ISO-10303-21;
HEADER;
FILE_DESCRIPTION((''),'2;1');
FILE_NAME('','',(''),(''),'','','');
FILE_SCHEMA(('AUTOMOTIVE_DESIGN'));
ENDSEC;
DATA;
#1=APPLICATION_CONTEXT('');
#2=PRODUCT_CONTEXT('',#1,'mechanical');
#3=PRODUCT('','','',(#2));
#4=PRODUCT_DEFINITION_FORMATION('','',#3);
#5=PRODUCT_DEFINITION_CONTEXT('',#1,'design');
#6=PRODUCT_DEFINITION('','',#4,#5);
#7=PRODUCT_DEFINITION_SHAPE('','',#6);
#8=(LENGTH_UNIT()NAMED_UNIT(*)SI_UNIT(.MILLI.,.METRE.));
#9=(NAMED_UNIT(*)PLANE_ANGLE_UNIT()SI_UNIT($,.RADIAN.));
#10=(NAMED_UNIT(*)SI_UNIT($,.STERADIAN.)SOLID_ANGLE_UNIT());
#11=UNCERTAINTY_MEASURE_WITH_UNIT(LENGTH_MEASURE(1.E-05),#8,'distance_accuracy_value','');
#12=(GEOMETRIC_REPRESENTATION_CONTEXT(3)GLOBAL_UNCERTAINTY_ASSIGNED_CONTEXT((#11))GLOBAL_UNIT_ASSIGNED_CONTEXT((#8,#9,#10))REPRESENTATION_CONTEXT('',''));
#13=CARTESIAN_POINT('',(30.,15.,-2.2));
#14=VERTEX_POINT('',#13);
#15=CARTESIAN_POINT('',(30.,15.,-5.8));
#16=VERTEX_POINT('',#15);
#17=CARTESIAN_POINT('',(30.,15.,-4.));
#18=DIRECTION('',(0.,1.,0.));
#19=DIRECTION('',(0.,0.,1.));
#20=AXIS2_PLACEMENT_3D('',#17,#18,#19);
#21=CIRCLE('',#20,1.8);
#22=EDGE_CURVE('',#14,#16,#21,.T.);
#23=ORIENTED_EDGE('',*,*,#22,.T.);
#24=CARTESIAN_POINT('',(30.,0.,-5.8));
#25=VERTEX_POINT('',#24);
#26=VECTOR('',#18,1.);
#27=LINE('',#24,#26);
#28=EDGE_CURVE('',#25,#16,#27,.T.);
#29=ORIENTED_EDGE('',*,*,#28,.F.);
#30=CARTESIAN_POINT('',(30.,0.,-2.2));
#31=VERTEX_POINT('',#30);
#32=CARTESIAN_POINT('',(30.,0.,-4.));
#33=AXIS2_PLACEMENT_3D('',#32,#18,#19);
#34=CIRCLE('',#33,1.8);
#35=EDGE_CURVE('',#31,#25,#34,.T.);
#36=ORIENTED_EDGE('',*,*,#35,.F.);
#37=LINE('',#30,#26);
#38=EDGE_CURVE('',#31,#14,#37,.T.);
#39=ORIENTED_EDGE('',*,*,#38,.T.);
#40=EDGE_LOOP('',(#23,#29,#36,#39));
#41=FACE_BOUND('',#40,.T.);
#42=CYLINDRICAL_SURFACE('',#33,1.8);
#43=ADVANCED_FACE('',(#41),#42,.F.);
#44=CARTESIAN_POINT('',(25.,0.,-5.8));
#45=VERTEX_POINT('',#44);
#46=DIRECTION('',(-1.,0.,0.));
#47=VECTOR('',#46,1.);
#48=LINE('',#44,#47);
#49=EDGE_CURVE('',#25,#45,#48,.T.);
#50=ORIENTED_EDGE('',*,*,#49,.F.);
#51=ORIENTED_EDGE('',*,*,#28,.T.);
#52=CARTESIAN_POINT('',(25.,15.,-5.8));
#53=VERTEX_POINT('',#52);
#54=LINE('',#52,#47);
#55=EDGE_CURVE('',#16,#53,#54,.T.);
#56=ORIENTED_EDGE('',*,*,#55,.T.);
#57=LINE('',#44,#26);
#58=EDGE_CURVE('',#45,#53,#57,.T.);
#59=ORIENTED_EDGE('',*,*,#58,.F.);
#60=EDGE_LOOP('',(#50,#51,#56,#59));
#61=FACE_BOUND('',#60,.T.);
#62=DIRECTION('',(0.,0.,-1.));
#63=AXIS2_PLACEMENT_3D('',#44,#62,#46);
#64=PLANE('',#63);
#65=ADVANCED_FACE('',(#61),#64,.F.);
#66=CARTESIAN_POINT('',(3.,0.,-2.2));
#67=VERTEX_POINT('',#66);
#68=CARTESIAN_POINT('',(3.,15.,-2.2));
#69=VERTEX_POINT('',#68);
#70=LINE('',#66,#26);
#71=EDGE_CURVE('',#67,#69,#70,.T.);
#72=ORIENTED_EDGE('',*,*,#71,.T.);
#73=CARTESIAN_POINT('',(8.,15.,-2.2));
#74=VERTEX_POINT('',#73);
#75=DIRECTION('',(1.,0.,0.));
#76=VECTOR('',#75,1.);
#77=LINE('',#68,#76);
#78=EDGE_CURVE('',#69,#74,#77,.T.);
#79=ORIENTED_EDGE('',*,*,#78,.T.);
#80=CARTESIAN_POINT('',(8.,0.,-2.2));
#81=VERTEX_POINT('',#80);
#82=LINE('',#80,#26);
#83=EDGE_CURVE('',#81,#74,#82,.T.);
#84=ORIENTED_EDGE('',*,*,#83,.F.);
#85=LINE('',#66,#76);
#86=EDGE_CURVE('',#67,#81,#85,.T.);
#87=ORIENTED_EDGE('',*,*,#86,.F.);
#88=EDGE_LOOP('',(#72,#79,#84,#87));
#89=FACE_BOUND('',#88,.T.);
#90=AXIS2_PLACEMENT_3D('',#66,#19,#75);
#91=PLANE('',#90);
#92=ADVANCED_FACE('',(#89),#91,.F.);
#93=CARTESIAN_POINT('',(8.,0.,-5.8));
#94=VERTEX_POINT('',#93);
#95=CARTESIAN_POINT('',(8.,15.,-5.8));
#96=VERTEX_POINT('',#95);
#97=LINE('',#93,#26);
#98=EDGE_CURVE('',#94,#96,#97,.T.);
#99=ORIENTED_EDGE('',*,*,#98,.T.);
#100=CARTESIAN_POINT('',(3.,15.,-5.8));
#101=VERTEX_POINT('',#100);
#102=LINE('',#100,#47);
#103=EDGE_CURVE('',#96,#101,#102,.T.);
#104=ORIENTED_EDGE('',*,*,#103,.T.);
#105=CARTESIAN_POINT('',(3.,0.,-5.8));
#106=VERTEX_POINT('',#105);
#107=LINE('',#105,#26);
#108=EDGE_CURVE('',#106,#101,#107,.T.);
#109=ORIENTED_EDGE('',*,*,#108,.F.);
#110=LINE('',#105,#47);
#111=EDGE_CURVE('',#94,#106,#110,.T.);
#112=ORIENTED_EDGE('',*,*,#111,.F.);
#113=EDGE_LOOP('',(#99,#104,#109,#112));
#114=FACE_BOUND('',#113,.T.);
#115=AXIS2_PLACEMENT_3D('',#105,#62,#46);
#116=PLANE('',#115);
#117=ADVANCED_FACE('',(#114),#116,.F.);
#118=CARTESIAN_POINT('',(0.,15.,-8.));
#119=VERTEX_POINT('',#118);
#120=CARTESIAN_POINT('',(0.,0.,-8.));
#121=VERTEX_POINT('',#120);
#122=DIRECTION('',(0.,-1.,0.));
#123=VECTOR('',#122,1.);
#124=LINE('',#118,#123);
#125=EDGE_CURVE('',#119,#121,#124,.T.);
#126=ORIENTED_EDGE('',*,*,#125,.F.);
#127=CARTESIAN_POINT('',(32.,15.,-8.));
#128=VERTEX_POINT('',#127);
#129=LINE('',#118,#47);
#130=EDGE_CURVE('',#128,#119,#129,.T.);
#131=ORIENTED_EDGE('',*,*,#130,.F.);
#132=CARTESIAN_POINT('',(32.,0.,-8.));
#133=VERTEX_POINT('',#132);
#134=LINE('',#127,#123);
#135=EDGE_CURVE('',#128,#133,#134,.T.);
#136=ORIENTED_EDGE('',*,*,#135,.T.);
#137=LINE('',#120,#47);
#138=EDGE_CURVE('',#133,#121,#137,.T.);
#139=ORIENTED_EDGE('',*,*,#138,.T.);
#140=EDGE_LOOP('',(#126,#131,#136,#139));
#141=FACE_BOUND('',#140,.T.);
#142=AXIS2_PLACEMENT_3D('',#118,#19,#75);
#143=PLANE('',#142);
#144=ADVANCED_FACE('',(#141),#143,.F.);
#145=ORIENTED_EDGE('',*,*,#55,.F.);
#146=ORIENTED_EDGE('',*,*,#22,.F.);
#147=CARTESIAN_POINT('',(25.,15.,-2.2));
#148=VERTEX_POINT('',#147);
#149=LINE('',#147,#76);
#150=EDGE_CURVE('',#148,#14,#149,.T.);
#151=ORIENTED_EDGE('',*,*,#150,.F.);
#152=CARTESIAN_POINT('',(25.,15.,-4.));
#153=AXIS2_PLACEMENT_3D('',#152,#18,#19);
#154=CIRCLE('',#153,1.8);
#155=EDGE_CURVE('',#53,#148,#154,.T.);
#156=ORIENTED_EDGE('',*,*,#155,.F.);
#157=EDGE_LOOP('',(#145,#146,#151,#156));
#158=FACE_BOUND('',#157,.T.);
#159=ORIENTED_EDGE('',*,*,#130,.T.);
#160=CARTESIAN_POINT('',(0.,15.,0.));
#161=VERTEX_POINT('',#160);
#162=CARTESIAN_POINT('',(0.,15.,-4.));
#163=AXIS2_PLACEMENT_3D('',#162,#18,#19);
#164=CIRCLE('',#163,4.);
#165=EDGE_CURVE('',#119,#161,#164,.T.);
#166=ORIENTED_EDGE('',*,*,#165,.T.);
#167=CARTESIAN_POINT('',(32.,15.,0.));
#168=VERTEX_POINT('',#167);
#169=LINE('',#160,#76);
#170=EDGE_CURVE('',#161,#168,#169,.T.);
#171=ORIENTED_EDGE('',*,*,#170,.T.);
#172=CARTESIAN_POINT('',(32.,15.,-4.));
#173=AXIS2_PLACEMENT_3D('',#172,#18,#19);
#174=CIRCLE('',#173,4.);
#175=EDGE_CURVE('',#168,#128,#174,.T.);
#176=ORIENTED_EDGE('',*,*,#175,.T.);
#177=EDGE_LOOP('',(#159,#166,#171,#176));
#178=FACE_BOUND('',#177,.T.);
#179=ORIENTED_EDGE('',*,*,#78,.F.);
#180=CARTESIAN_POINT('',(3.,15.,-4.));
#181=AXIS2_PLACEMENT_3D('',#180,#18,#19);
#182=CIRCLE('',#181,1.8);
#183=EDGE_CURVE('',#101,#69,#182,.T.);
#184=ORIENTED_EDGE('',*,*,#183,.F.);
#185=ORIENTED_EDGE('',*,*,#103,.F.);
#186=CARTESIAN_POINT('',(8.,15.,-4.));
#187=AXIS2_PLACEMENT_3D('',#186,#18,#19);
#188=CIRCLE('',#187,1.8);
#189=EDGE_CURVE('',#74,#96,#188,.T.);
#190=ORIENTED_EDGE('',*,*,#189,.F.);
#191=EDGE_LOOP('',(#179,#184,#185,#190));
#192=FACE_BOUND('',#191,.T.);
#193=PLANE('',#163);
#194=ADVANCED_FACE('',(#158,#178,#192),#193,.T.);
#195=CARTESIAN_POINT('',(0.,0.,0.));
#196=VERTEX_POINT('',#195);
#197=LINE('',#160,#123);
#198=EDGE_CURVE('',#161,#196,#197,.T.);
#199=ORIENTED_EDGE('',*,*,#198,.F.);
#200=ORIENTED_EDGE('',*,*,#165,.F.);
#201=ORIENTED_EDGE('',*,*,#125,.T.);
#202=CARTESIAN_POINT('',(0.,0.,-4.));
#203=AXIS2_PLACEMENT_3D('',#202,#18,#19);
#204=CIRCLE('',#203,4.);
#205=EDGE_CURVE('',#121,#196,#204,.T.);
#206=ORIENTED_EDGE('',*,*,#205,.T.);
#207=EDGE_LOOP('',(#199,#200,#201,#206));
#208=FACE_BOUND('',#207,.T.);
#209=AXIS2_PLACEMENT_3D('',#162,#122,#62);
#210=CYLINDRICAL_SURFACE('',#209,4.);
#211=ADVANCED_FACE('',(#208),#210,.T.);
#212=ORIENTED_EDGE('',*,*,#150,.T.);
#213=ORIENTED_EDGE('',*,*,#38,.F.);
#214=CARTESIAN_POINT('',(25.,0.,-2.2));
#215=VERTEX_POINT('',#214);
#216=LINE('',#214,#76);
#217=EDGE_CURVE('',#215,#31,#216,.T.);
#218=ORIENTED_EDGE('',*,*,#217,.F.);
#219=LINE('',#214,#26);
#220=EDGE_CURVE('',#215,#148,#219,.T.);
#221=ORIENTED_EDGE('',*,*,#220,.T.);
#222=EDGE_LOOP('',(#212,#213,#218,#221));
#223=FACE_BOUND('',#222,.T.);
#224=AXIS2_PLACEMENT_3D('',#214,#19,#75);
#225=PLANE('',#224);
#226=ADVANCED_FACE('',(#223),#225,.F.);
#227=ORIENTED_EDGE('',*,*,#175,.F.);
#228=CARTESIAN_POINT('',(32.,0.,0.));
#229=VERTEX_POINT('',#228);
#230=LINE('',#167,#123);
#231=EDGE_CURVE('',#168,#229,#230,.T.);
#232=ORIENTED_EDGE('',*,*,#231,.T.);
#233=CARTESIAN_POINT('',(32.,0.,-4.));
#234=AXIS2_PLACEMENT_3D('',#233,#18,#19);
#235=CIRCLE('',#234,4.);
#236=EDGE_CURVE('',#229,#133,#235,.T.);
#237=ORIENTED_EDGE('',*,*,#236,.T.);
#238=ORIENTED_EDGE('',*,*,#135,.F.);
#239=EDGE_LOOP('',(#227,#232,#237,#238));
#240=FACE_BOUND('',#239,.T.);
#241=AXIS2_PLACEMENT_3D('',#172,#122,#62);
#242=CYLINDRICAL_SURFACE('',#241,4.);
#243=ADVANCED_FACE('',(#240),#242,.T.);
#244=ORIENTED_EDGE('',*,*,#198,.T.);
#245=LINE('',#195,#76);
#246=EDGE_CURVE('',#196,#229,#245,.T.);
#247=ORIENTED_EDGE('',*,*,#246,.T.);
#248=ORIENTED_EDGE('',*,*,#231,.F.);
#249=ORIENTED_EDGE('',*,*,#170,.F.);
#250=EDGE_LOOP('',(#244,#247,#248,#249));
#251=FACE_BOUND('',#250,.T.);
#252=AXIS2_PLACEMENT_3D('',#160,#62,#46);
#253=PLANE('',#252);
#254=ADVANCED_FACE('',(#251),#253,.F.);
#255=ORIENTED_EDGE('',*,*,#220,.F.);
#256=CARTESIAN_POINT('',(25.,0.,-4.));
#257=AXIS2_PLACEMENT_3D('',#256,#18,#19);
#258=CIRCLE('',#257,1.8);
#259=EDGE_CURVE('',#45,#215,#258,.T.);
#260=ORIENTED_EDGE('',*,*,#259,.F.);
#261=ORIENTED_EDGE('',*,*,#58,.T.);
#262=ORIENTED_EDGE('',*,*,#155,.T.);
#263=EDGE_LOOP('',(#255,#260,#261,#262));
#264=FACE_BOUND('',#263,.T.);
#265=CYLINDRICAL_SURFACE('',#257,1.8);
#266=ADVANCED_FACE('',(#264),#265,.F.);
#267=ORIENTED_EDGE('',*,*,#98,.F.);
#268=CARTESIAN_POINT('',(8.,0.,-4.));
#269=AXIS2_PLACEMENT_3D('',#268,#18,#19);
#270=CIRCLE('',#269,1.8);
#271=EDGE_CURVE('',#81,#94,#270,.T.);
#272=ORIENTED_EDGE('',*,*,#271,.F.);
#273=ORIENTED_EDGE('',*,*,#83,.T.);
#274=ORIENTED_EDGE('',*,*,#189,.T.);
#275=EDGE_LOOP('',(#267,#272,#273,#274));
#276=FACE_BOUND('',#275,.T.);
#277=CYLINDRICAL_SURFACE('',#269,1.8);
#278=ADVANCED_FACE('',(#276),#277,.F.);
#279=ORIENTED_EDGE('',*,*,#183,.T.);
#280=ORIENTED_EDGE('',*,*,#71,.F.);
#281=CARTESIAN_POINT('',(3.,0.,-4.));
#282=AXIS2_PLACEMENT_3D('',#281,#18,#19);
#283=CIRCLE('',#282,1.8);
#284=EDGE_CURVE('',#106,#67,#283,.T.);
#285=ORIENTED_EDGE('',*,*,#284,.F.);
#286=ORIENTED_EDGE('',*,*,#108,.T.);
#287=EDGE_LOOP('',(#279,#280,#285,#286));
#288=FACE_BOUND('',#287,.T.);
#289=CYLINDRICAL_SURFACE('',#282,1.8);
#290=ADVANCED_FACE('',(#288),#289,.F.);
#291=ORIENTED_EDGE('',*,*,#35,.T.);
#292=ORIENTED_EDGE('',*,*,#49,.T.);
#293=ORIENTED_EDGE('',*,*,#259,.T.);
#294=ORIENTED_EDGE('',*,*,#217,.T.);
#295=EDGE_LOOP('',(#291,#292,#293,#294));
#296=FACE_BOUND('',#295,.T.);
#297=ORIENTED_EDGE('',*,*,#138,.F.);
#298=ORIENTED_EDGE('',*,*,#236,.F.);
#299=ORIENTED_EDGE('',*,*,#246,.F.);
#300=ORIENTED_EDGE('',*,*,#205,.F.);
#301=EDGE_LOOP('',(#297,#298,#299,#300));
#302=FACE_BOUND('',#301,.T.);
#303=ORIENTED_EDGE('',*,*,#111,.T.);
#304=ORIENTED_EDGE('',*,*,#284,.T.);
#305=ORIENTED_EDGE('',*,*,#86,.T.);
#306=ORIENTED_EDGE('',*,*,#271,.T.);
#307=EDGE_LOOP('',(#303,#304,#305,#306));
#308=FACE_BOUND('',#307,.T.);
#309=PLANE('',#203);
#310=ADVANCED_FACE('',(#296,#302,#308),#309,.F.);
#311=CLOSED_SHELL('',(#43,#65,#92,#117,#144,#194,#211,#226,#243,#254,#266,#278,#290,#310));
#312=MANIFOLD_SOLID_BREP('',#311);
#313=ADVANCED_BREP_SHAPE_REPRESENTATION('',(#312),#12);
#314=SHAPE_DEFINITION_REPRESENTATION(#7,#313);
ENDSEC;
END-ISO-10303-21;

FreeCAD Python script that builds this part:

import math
import FreeCAD as App
import Part
import Sketcher

V = App.Vector

doc = App.newDocument("Part")
body = doc.addObject("PartDesign::Body", "Body")

sketch1 = body.newObject("Sketcher::SketchObject", "Sketch")
sketch1.AttachmentSupport = (doc.getObject("XZ_Plane"), [""])
sketch1.MapMode = "FlatFace"
sketch1.addGeometry(Part.LineSegment(V(0, 0, 0), V(32, 0, 0)), False)
sketch1.addGeometry(Part.ArcOfCircle(Part.Circle(V(32, -4, 0), V(0, 0, 1), 4), math.radians(-90), math.radians(90)), False)
sketch1.addGeometry(Part.LineSegment(V(32, -8, 0), V(0, -8, 0)), False)
sketch1.addGeometry(Part.ArcOfCircle(Part.Circle(V(0, -4, 0), V(0, 0, 1), 4), math.radians(90), math.radians(270)), False)
sketch1.addConstraint(Sketcher.Constraint("Tangent", 0, 2, 1, 2))
sketch1.addConstraint(Sketcher.Constraint("Tangent", 1, 1, 2, 1))
sketch1.addConstraint(Sketcher.Constraint("Tangent", 2, 2, 3, 2))
sketch1.addConstraint(Sketcher.Constraint("Tangent", 3, 1, 0, 1))
sketch1.addConstraint(Sketcher.Constraint("Horizontal", 0))
sketch1.addConstraint(Sketcher.Constraint("Horizontal", 2))
sketch1.addConstraint(Sketcher.Constraint("Coincident", 3, 1, -1, 1))
sketch1.addConstraint(Sketcher.Constraint("Radius", 1, 4.0))
sketch1.addConstraint(Sketcher.Constraint("DistanceX", 0, 1, 0, 2, 32.0))
pad1 = body.newObject("PartDesign::Pad", "Pad")
pad1.Profile = sketch1
pad1.Length = 15
pad1.Reversed = True

sketch2 = body.newObject("Sketcher::SketchObject", "Sketch001")
sketch2.AttachmentSupport = (doc.getObject("XZ_Plane"), [""])
sketch2.MapMode = "FlatFace"
sketch2.AttachmentOffset = App.Placement(V(0, 0, -15), App.Rotation())
sketch2.addGeometry(Part.LineSegment(V(8, -5.8, 0), V(3, -5.8, 0)), False)
sketch2.addGeometry(Part.ArcOfCircle(Part.Circle(V(3, -4, 0), V(0, 0, 1), 1.8), math.radians(90), math.radians(270)), False)
sketch2.addGeometry(Part.LineSegment(V(3, -2.2, 0), V(8, -2.2, 0)), False)
sketch2.addGeometry(Part.ArcOfCircle(Part.Circle(V(8, -4, 0), V(0, 0, 1), 1.8), math.radians(-90), math.radians(90)), False)
sketch2.addGeometry(Part.LineSegment(V(30, -5.8, 0), V(25, -5.8, 0)), False)
sketch2.addGeometry(Part.ArcOfCircle(Part.Circle(V(25, -4, 0), V(0, 0, 1), 1.8), math.radians(90), math.radians(270)), False)
sketch2.addGeometry(Part.LineSegment(V(25, -2.2, 0), V(30, -2.2, 0)), False)
sketch2.addGeometry(Part.ArcOfCircle(Part.Circle(V(30, -4, 0), V(0, 0, 1), 1.8), math.radians(-90), math.radians(90)), False)
sketch2.addConstraint(Sketcher.Constraint("Tangent", 0, 2, 1, 2))
sketch2.addConstraint(Sketcher.Constraint("Tangent", 1, 1, 2, 1))
sketch2.addConstraint(Sketcher.Constraint("Tangent", 2, 2, 3, 2))
sketch2.addConstraint(Sketcher.Constraint("Tangent", 3, 1, 0, 1))
sketch2.addConstraint(Sketcher.Constraint("Tangent", 4, 2, 5, 2))
sketch2.addConstraint(Sketcher.Constraint("Tangent", 5, 1, 6, 1))
sketch2.addConstraint(Sketcher.Constraint("Tangent", 6, 2, 7, 2))
sketch2.addConstraint(Sketcher.Constraint("Tangent", 7, 1, 4, 1))
sketch2.addConstraint(Sketcher.Constraint("Horizontal", 0))
sketch2.addConstraint(Sketcher.Constraint("Horizontal", 2))
sketch2.addConstraint(Sketcher.Constraint("Horizontal", 4))
sketch2.addConstraint(Sketcher.Constraint("Horizontal", 6))
sketch2.addConstraint(Sketcher.Constraint("Equal", 3, 5))
sketch2.addConstraint(Sketcher.Constraint("Horizontal", 3, 3, 5, 3))
sketch2.addConstraint(Sketcher.Constraint("Equal", 2, 4))
sketch2.addConstraint(Sketcher.Constraint("Radius", 1, 1.8))
sketch2.addConstraint(Sketcher.Constraint("DistanceX", 0, 2, 0, 1, 5.0))
sketch2.addConstraint(Sketcher.Constraint("DistanceX", -1, 1, 1, 3, 3.0))
sketch2.addConstraint(Sketcher.Constraint("DistanceY", 1, 3, -1, 1, 4.0))
sketch2.addConstraint(Sketcher.Constraint("DistanceX", -1, 1, 5, 3, 25.0))
pocket1 = body.newObject("PartDesign::Pocket", "Pocket")
pocket1.Profile = sketch2
pocket1.Type = "ThroughAll"
pocket1.Reversed = True

doc.recompute()
